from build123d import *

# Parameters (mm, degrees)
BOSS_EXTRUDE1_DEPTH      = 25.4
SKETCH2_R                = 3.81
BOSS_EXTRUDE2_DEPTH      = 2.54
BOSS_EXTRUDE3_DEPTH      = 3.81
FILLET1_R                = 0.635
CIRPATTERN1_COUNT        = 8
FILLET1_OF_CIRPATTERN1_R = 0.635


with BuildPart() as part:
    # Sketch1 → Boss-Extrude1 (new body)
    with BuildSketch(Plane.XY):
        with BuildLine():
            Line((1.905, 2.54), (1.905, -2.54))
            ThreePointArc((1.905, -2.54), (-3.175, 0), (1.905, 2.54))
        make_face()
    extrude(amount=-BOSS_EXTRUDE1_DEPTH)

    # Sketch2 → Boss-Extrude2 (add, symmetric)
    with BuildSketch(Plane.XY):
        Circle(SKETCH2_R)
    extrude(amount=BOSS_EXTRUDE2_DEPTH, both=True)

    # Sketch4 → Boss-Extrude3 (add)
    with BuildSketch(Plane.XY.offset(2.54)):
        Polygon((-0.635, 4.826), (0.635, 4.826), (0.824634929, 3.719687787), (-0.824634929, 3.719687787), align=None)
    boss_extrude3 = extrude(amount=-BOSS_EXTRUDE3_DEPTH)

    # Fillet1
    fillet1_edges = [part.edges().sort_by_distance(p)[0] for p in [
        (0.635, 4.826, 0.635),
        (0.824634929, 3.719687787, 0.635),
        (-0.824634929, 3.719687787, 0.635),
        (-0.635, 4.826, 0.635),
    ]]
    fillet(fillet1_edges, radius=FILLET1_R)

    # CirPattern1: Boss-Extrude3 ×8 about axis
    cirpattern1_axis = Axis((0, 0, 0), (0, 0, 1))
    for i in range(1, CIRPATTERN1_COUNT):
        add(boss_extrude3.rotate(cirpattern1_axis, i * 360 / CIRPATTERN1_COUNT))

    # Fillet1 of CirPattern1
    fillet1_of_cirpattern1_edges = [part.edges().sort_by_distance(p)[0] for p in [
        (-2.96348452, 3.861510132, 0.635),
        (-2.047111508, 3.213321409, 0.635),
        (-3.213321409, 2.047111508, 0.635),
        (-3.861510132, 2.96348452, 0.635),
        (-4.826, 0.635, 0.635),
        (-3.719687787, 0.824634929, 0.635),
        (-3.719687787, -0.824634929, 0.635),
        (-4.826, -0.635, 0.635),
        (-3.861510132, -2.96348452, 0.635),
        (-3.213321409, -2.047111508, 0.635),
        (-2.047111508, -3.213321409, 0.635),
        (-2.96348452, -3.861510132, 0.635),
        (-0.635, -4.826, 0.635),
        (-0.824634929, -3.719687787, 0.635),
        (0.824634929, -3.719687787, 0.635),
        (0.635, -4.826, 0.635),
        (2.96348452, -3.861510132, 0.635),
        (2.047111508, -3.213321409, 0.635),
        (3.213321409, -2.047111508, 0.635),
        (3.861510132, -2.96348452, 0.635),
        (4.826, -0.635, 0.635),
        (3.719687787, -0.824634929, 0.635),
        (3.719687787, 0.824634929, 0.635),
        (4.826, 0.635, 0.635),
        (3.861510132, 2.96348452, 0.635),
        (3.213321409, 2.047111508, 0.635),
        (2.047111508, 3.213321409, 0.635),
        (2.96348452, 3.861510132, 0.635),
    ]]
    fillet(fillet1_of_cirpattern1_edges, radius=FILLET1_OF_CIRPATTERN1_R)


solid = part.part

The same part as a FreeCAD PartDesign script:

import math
import FreeCAD as App
import Part
import Sketcher

V = App.Vector
Q = App.Units.Quantity


def edges_at(feature, points):
    """Names of the edges that pass closest to the given points."""
    edges = feature.Shape.Edges
    near = lambda p: min(range(len(edges)), key=lambda i: edges[i].distToShape(Part.Vertex(*p))[0])
    return sorted({f"Edge{near(p) + 1}" for p in points})

doc = App.newDocument("Part")
body = doc.addObject("PartDesign::Body", "Body")

# Sketch on XY plane
sketch1 = body.newObject("Sketcher::SketchObject", "Sketch")
sketch1.AttachmentSupport = (doc.getObject("XY_Plane"), [""])
sketch1.MapMode = "FlatFace"
sketch1.addGeometry([
    Part.LineSegment(V(1.9, -2.5, 0), V(1.9, 2.5, 0)),
    Part.ArcOfCircle(Part.Circle(V(0, 0, 0), V(0, 0, 1), 3.2), math.radians(53), math.radians(307)),
], False)
sketch1.addConstraint([
    Sketcher.Constraint("Coincident", 0, 1, 1, 2),
    Sketcher.Constraint("Coincident", 1, 1, 0, 2),
    Sketcher.Constraint("Vertical", 0),
    Sketcher.Constraint("Coincident", 1, 3, -1, 1),
    Sketcher.Constraint("DistanceY", 0, 1, 0, 2, Q("0.2 in")),
    Sketcher.Constraint("Radius", 1, Q("0.125 in")),
])
pad1 = body.newObject("PartDesign::Pad", "Pad")
pad1.Profile = sketch1
pad1.Length = Q("1 in")
pad1.Reversed = True

# Sketch on XY plane
sketch2 = body.newObject("Sketcher::SketchObject", "Sketch001")
sketch2.AttachmentSupport = (doc.getObject("XY_Plane"), [""])
sketch2.MapMode = "FlatFace"
sketch2.addGeometry(Part.Circle(V(0, 0, 0), V(0, 0, 1), 3.8), False)
sketch2.addConstraint([
    Sketcher.Constraint("Coincident", 0, 3, -1, 1),
    Sketcher.Constraint("Diameter", 0, Q("0.3 in")),
])
pad2 = body.newObject("PartDesign::Pad", "Pad001")
pad2.Profile = sketch2
pad2.Length = Q("0.2 in")
pad2.Midplane = True

# Sketch on XY plane
sketch3 = body.newObject("Sketcher::SketchObject", "Sketch002")
sketch3.AttachmentSupport = (doc.getObject("XY_Plane"), [""])
sketch3.MapMode = "FlatFace"
sketch3.AttachmentOffset = App.Placement(V(0, 0, 0.1 * 25.4), App.Rotation())
sketch3.addGeometry([
    Part.LineSegment(V(0.6, 4.8, 0), V(-0.6, 4.8, 0)),
    Part.LineSegment(V(-0.6, 4.8, 0), V(-0.8, 3.7, 0)),
    Part.LineSegment(V(-0.8, 3.7, 0), V(0.8, 3.7, 0)),
    Part.LineSegment(V(0.8, 3.7, 0), V(0.6, 4.8, 0)),
], False)
sketch3.addConstraint([
    Sketcher.Constraint("Coincident", 0, 2, 1, 1),
    Sketcher.Constraint("Coincident", 1, 2, 2, 1),
    Sketcher.Constraint("Coincident", 2, 2, 3, 1),
    Sketcher.Constraint("Coincident", 3, 2, 0, 1),
    Sketcher.Constraint("Horizontal", 0),
    Sketcher.Constraint("Horizontal", 2),
    Sketcher.Constraint("Equal", 1, 3),
    Sketcher.Constraint("DistanceX", 0, 2, 0, 1, Q("0.05 in")),
    Sketcher.Constraint("DistanceY", -1, 1, 0, 2, Q("0.19 in")),
    Sketcher.Constraint("DistanceX", 0, 2, -1, 1, Q("0.025 in")),
    Sketcher.Constraint("DistanceX", 2, 1, 2, 2, 1.64927),
    Sketcher.Constraint("Distance", 1, 1.122447),
])
pad3 = body.newObject("PartDesign::Pad", "Pad002")
pad3.Profile = sketch3
pad3.Length = Q("0.15 in")
pad3.Reversed = True
doc.recompute()

fillet = body.newObject("PartDesign::Fillet", "Fillet")
fillet.Base = (pad3, edges_at(pad3, [
    (0.635, 4.826, 0.635),
    (0.825, 3.72, 0.635),
    (-0.825, 3.72, 0.635),
    (-0.635, 4.826, 0.635),
]))
fillet.Radius = Q("0.025 in")
doc.recompute()

polarpattern = body.newObject("PartDesign::PolarPattern", "PolarPattern")
polarpattern.Originals = [pad3]
polarpattern.Axis = (doc.getObject("Z_Axis"), [""])
polarpattern.Angle = 360
polarpattern.Occurrences = 8
body.Tip = polarpattern
doc.recompute()

fillet2 = body.newObject("PartDesign::Fillet", "Fillet001")
fillet2.Base = (polarpattern, edges_at(polarpattern, [
    (-2.963, 3.862, 0.635),
    (-2.047, 3.213, 0.635),
    (-3.213, 2.047, 0.635),
    (-3.862, 2.963, 0.635),
    (-4.826, 0.635, 0.635),
    (-3.72, 0.825, 0.635),
    (-3.72, -0.825, 0.635),
    (-4.826, -0.635, 0.635),
    (-3.862, -2.963, 0.635),
    (-3.213, -2.047, 0.635),
    (-2.047, -3.213, 0.635),
    (-2.963, -3.862, 0.635),
    (-0.635, -4.826, 0.635),
    (-0.825, -3.72, 0.635),
    (0.825, -3.72, 0.635),
    (0.635, -4.826, 0.635),
    (2.963, -3.862, 0.635),
    (2.047, -3.213, 0.635),
    (3.213, -2.047, 0.635),
    (3.862, -2.963, 0.635),
    (4.826, -0.635, 0.635),
    (3.72, -0.825, 0.635),
    (3.72, 0.825, 0.635),
    (4.826, 0.635, 0.635),
    (3.862, 2.963, 0.635),
    (3.213, 2.047, 0.635),
    (2.047, 3.213, 0.635),
    (2.963, 3.862, 0.635),
]))
fillet2.Radius = Q("0.025 in")

doc.recompute()
